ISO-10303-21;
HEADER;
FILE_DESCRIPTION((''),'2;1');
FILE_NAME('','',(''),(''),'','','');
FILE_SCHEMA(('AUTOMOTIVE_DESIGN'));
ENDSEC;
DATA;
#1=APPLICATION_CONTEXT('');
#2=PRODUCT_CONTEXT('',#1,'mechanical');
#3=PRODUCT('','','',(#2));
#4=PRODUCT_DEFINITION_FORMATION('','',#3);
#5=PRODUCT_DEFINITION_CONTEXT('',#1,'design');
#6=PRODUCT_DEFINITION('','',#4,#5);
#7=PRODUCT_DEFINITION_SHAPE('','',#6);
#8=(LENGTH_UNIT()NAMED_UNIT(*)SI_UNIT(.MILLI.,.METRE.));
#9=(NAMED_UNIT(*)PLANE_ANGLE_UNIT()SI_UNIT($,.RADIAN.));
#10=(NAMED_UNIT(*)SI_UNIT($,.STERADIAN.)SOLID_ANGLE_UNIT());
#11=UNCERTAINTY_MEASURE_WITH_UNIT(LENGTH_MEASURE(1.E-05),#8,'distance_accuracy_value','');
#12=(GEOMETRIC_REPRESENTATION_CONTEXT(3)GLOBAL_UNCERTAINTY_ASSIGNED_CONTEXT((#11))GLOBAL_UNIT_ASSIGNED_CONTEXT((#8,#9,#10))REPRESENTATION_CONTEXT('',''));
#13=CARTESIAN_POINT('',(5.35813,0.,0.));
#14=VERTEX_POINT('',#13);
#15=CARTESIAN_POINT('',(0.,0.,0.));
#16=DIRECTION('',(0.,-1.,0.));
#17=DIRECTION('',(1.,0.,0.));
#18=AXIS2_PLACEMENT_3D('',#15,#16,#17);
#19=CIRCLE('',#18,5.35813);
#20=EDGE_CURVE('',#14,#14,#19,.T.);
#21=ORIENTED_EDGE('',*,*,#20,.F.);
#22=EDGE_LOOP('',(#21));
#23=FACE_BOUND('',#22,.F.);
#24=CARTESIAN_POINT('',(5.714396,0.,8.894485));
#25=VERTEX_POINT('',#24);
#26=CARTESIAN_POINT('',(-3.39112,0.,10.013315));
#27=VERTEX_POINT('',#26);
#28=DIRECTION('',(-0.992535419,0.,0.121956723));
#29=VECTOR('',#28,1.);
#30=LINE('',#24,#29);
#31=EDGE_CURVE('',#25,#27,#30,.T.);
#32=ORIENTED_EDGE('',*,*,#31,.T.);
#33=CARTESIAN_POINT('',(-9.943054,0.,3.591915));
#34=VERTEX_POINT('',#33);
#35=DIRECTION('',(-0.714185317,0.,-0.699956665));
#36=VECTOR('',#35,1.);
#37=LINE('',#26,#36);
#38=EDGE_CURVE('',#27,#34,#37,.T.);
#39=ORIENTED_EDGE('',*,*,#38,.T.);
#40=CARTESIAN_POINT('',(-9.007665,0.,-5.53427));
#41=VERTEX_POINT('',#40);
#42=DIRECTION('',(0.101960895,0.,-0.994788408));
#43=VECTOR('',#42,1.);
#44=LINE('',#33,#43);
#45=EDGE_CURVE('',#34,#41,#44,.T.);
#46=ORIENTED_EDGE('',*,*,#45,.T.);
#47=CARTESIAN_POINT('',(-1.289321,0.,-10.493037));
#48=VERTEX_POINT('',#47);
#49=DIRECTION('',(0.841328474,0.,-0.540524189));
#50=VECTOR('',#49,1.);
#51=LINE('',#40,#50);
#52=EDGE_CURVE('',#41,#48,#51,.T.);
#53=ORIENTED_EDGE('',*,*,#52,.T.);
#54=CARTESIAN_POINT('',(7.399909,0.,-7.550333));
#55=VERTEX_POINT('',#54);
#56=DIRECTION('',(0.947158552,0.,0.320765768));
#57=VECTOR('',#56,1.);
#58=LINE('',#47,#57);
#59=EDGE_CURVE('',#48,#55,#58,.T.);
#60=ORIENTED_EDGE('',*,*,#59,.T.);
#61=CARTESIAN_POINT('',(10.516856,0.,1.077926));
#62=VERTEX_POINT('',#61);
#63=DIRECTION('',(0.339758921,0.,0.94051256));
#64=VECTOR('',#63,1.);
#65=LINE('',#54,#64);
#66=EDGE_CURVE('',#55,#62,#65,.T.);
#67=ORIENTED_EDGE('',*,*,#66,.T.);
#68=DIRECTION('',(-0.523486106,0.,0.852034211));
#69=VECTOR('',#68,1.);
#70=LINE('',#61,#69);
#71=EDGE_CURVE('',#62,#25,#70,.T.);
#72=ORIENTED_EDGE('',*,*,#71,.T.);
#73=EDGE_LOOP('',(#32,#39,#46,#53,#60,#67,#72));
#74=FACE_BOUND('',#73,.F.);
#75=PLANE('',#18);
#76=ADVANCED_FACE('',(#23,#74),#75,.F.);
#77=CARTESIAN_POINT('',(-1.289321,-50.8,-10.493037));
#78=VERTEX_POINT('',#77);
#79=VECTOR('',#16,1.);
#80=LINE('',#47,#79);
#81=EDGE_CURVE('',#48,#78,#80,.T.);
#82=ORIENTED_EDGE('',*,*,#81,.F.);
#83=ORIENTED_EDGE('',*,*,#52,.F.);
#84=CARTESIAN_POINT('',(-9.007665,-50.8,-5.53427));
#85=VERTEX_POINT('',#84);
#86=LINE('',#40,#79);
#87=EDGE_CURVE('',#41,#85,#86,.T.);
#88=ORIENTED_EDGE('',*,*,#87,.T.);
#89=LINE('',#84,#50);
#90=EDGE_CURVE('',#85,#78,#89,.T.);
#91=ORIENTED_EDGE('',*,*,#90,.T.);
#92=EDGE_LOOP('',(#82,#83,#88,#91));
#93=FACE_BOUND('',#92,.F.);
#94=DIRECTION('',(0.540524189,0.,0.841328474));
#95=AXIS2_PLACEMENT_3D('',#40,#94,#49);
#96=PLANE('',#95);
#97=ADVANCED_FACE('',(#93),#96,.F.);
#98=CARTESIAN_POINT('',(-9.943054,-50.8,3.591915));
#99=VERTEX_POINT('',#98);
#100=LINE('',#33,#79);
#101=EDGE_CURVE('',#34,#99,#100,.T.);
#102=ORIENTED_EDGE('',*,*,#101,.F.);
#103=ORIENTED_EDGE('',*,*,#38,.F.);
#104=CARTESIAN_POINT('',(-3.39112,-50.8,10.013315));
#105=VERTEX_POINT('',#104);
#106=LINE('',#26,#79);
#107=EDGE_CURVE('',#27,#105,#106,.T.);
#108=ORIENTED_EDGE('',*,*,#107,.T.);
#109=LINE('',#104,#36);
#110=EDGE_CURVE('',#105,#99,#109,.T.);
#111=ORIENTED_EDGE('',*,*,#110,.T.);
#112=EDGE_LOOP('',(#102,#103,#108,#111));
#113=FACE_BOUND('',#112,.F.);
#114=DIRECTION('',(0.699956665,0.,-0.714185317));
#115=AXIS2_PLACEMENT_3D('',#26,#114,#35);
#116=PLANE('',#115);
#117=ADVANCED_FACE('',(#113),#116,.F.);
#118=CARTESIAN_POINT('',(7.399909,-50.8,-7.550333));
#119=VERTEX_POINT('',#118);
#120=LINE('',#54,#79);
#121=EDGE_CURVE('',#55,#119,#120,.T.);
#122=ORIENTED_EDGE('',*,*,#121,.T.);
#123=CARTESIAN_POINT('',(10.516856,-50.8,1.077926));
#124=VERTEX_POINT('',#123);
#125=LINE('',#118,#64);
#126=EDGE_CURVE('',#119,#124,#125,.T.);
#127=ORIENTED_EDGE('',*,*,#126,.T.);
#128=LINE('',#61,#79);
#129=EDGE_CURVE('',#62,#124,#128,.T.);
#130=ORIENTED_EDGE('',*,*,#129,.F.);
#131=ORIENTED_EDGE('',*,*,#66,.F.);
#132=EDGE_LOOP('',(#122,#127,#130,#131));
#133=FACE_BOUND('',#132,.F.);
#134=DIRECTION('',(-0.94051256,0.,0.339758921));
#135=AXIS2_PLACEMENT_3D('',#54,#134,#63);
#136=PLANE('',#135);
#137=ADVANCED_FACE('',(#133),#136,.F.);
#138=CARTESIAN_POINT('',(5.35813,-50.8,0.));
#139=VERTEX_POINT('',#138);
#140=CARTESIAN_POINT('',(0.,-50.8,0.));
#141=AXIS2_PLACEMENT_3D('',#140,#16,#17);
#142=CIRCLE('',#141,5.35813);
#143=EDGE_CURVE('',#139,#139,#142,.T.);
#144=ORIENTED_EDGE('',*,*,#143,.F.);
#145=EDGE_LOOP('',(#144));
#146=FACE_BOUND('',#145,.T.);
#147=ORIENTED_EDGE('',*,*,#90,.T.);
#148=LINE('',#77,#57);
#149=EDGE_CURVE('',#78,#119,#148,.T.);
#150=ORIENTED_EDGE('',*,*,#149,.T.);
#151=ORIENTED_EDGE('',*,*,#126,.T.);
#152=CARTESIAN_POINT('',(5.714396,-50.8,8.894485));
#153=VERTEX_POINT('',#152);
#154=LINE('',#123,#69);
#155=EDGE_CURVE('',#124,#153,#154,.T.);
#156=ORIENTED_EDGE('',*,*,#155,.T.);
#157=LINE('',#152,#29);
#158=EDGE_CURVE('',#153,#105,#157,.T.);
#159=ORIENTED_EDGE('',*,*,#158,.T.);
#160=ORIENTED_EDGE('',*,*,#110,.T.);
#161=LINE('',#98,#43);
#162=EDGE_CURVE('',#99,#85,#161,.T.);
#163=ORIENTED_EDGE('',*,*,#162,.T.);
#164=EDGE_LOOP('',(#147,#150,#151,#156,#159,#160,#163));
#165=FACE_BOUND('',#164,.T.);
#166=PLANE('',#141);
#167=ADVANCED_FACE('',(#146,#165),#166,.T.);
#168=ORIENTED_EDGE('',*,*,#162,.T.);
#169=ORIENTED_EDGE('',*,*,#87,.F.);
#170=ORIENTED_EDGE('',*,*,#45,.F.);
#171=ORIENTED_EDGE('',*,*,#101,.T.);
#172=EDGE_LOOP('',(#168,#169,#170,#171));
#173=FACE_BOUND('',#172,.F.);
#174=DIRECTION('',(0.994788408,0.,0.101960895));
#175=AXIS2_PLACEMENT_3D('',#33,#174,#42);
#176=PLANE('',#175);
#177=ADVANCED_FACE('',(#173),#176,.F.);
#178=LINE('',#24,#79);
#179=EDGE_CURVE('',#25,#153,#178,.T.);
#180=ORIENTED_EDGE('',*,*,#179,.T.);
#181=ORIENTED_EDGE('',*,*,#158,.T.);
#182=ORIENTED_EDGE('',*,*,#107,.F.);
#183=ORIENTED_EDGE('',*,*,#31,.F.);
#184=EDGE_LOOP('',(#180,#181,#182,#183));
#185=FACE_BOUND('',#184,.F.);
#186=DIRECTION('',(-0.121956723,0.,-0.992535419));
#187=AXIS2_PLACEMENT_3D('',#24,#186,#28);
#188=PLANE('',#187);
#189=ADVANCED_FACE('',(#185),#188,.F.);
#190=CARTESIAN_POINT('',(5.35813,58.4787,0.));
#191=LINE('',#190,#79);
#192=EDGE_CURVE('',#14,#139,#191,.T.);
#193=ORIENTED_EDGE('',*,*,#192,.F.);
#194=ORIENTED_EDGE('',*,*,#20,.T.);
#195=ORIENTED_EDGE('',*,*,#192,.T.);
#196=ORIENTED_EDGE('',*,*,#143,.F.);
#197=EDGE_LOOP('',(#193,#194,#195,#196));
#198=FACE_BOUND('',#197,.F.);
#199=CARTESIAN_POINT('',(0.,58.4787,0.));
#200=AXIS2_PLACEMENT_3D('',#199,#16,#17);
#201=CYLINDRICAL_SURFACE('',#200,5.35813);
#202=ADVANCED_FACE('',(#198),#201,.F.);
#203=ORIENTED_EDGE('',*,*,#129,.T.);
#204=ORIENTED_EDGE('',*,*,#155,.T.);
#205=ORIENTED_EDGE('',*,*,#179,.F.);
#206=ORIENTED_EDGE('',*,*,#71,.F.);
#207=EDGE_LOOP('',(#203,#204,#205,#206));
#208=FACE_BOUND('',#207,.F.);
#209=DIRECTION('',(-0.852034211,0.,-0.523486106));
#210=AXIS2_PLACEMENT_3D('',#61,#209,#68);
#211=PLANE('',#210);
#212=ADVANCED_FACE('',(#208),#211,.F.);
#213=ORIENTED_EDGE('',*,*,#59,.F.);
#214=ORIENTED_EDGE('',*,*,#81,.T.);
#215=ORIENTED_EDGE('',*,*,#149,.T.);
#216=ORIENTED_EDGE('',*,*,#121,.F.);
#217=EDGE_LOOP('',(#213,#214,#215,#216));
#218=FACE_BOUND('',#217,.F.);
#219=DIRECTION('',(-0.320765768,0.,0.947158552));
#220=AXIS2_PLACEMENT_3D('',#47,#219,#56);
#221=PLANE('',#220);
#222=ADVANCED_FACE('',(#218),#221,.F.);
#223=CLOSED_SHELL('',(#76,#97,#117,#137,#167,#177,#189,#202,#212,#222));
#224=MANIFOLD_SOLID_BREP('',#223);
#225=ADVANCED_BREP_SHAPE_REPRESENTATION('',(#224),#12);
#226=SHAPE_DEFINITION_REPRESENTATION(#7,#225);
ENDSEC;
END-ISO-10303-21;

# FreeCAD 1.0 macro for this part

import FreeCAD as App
import Part
import Sketcher
Q = App.Units.Quantity

doc = App.newDocument("Part")
body = doc.addObject("PartDesign::Body", "Body")

# Sketch on XZ plane
sketch1 = doc.addObject("Sketcher::SketchObject", "Sketch")
body.addObject(sketch1)
sketch1.AttachmentSupport = (doc.XZ_Plane, [""])
sketch1.MapMode = "FlatFace"
sketch1.addGeometry([
    Part.LineSegment(App.Vector(6, 9, 0), App.Vector(-3, 10, 0)),  # 0
    Part.LineSegment(App.Vector(-3, 10, 0), App.Vector(-10, 4, 0)),  # 1
    Part.LineSegment(App.Vector(-10, 4, 0), App.Vector(-9, -6, 0)),  # 2
    Part.LineSegment(App.Vector(-9, -6, 0), App.Vector(-1, -10, 0)),  # 3
    Part.LineSegment(App.Vector(-1, -10, 0), App.Vector(7, -8, 0)),  # 4
    Part.LineSegment(App.Vector(7, -8, 0), App.Vector(11, 1, 0)),  # 5
    Part.LineSegment(App.Vector(11, 1, 0), App.Vector(6, 9, 0)),  # 6
], False)
sketch1.addConstraint([
    Sketcher.Constraint("Coincident", 0, 2, 1, 1),
    Sketcher.Constraint("Coincident", 1, 2, 2, 1),
    Sketcher.Constraint("Coincident", 2, 2, 3, 1),
    Sketcher.Constraint("Coincident", 3, 2, 4, 1),
    Sketcher.Constraint("Coincident", 4, 2, 5, 1),
    Sketcher.Constraint("Coincident", 5, 2, 6, 1),
    Sketcher.Constraint("Coincident", 6, 2, 0, 1),
    Sketcher.Constraint("Equal", 0, 1),
    Sketcher.Constraint("Equal", 1, 2),
    Sketcher.Constraint("Equal", 2, 3),
    Sketcher.Constraint("Equal", 3, 4),
    Sketcher.Constraint("Equal", 4, 5),
    Sketcher.Constraint("Equal", 5, 6),
    Sketcher.Constraint("DistanceY", 1, 2, 0, 2, 6.4214),
    Sketcher.Constraint("DistanceX", 0, 2, 3, 2, 2.1018),
    Sketcher.Constraint("DistanceX", 0, 2, -1, 1, 3.39112),
    Sketcher.Constraint("DistanceY", 2, 2, -1, 1, 5.53427),
    Sketcher.Constraint("DistanceX", -1, 1, 4, 2, 7.399909),
    Sketcher.Constraint("DistanceX", 1, 2, 2, 2, 0.935389),
    Sketcher.Constraint("DistanceY", 4, 2, 1, 2, 11.142248),
    Sketcher.Constraint("DistanceY", 4, 2, 5, 2, 8.628259),
])
pad1 = doc.addObject("PartDesign::Pad", "Pad")
body.addObject(pad1)
pad1.Profile = sketch1
pad1.Length = Q("2 in")

# Sketch on XZ plane
sketch2 = doc.addObject("Sketcher::SketchObject", "Sketch001")
body.addObject(sketch2)
sketch2.AttachmentSupport = (doc.XZ_Plane, [""])
sketch2.MapMode = "FlatFace"
sketch2.addGeometry(Part.Circle(App.Vector(0, 0, 0), App.Vector(0, 0, 1), 5), False)
sketch2.addConstraint([
    Sketcher.Constraint("Coincident", 0, 3, -1, 1),
    Sketcher.Constraint("Diameter", 0, Q("0.4219 in")),
])
doc.recompute()
hole = doc.addObject("PartDesign::Hole", "Hole")
body.addObject(hole)
hole.Profile = sketch2
hole.ThreadType = "None"
hole.Diameter = Q("0.4219 in")
hole.DepthType = "ThroughAll"
hole.Reversed = True

doc.recompute()
